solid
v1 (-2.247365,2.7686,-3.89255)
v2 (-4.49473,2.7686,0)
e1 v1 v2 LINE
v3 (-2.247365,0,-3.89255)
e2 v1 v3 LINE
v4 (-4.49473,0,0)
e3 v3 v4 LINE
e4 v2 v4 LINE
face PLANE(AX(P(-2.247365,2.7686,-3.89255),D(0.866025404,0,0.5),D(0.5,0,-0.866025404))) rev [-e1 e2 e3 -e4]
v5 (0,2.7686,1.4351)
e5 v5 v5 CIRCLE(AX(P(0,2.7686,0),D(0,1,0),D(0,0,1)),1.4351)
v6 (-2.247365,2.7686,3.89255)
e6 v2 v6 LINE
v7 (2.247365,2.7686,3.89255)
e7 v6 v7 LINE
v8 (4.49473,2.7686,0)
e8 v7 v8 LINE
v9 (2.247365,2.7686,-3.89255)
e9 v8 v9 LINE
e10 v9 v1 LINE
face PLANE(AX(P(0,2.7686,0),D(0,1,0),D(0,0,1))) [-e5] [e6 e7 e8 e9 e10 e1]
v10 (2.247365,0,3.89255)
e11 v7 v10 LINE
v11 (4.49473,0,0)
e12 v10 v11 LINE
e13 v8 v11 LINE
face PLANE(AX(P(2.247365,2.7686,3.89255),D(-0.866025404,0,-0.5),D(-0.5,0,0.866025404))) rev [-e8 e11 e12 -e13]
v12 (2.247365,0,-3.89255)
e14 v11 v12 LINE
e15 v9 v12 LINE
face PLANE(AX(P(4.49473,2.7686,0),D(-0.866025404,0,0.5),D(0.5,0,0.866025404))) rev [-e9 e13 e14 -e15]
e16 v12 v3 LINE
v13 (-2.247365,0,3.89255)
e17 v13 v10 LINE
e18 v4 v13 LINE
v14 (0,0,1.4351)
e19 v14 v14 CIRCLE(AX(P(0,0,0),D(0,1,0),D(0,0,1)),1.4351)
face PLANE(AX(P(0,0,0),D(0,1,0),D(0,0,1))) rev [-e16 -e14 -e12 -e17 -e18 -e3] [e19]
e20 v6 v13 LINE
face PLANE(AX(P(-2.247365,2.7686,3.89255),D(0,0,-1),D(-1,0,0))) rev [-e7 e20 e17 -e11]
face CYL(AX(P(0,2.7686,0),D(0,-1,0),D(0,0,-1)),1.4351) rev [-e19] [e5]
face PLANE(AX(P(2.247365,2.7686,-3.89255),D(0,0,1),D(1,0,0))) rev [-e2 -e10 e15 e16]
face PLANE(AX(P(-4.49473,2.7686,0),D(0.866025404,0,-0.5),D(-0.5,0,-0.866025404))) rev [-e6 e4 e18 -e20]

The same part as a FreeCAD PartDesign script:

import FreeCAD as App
import Part
import Sketcher
Q = App.Units.Quantity

doc = App.newDocument("Part")
body = doc.addObject("PartDesign::Body", "Body")

sketch1 = body.newObject("Sketcher::SketchObject", "Sketch")
sketch1.AttachmentSupport = (doc.getObject("XZ_Plane"), [""])
sketch1.MapMode = "FlatFace"
sketch1.addGeometry(Part.LineSegment(App.Vector(-2.247365, -3.89255, 0), App.Vector(-4.49473, 0, 0)), False)
sketch1.addGeometry(Part.LineSegment(App.Vector(-4.49473, 0, 0), App.Vector(-2.247365, 3.89255, 0)), False)
sketch1.addGeometry(Part.LineSegment(App.Vector(-2.247365, 3.89255, 0), App.Vector(2.247365, 3.89255, 0)), False)
sketch1.addGeometry(Part.LineSegment(App.Vector(2.247365, 3.89255, 0), App.Vector(4.49473, 0, 0)), False)
sketch1.addGeometry(Part.LineSegment(App.Vector(4.49473, 0, 0), App.Vector(2.247365, -3.89255, 0)), False)
sketch1.addGeometry(Part.LineSegment(App.Vector(2.247365, -3.89255, 0), App.Vector(-2.247365, -3.89255, 0)), False)
sketch1.addConstraint(Sketcher.Constraint("Coincident", 0, 2, 1, 1))
sketch1.addConstraint(Sketcher.Constraint("Coincident", 1, 2, 2, 1))
sketch1.addConstraint(Sketcher.Constraint("Coincident", 2, 2, 3, 1))
sketch1.addConstraint(Sketcher.Constraint("Coincident", 3, 2, 4, 1))
sketch1.addConstraint(Sketcher.Constraint("Coincident", 4, 2, 5, 1))
sketch1.addConstraint(Sketcher.Constraint("Coincident", 5, 2, 0, 1))
sketch1.addConstraint(Sketcher.Constraint("Horizontal", 2))
sketch1.addConstraint(Sketcher.Constraint("Horizontal", 5))
sketch1.addConstraint(Sketcher.Constraint("Symmetric", 0, 2, 3, 2, -1, 1))
sketch1.addConstraint(Sketcher.Constraint("Symmetric", 1, 2, 4, 2, -1, 1))
sketch1.addConstraint(Sketcher.Constraint("PointOnObject", 0, 2, -1))
sketch1.addConstraint(Sketcher.Constraint("Parallel", 0, 3))
sketch1.addConstraint(Sketcher.Constraint("Vertical", 2, 2, 4, 2))
sketch1.addConstraint(Sketcher.Constraint("Angle", 0, Q("120 deg")))
sketch1.addConstraint(Sketcher.Constraint("DistanceY", 4, 2, 2, 2, Q("0.3065 in")))
sketch1.addConstraint(Sketcher.Constraint("DistanceX", 2, 1, 2, 2, Q("4.49473 mm")))
pad1 = body.newObject("PartDesign::Pad", "Pad")
pad1.Profile = sketch1
pad1.Length = Q("0.109 in")
pad1.Reversed = True

sketch2 = body.newObject("Sketcher::SketchObject", "Sketch001")
sketch2.AttachmentSupport = (doc.getObject("XZ_Plane"), [""])
sketch2.MapMode = "FlatFace"
sketch2.addGeometry(Part.Circle(App.Vector(0, 0, 0), App.Vector(0, 0, 1), 1.4351), False)
sketch2.addConstraint(Sketcher.Constraint("Coincident", 0, 3, -1, 1))
sketch2.addConstraint(Sketcher.Constraint("Diameter", 0, Q("0.113 in")))
pocket1 = body.newObject("PartDesign::Pocket", "Pocket")
pocket1.Profile = sketch2
pocket1.Type = "ThroughAll"

doc.recompute()
